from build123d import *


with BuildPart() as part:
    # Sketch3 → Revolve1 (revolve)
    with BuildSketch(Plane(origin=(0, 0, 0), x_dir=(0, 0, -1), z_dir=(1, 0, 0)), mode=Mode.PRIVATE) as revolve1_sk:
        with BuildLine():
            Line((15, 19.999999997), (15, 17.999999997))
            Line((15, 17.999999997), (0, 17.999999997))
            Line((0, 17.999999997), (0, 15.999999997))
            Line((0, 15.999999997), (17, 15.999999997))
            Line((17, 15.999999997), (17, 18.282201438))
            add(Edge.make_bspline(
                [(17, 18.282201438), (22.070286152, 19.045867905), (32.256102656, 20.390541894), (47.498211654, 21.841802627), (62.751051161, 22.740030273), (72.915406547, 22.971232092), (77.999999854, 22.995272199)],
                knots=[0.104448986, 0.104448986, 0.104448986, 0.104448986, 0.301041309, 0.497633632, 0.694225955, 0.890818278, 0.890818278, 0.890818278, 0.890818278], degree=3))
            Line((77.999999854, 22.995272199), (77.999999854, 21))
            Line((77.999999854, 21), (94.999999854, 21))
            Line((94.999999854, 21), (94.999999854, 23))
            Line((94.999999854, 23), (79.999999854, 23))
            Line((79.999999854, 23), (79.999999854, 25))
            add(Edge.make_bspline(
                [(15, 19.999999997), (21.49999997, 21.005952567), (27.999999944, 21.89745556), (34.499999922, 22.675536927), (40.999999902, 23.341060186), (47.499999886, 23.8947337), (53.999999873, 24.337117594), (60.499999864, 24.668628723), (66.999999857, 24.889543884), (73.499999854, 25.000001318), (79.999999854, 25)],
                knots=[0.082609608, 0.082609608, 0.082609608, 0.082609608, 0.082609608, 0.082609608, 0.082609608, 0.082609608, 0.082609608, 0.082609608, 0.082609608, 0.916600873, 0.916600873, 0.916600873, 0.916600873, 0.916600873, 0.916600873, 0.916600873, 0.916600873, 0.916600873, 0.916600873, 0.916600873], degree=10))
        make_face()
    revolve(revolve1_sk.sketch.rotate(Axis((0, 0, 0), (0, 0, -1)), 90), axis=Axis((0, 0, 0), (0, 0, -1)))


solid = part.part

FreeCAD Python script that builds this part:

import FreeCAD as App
import Part
import Sketcher
from FreeCAD import Vector
Q = App.Units.Quantity

doc = App.newDocument("Part")
body = doc.addObject("PartDesign::Body", "Body")

# Sketch on YZ plane
sketch1 = doc.addObject("Sketcher::SketchObject", "Sketch")
body.addObject(sketch1)
sketch1.AttachmentSupport = (doc.YZ_Plane, [""])
sketch1.MapMode = "FlatFace"
sketch1.addGeometry([
    Part.LineSegment(Vector(20, -15, 0), Vector(18, -15, 0)),  # 0
    Part.LineSegment(Vector(18, -15, 0), Vector(18, 0, 0)),  # 1
    Part.LineSegment(Vector(18, 0, 0), Vector(16, 0, 0)),  # 2
    Part.LineSegment(Vector(16, 0, 0), Vector(16, -17, 0)),  # 3
    Part.LineSegment(Vector(16, -17, 0), Vector(18.282201, -17, 0)),  # 4
    Part.BSplineCurve([Vector(18.282201, -17, 0), Vector(19.045868, -22.070286, 0), Vector(20.390542, -32.256103, 0), Vector(21.841803, -47.498212, 0), Vector(22.74003, -62.751051, 0), Vector(22.971232, -72.915407, 0), Vector(22.995272, -78, 0)], [4, 1, 1, 1, 4], [0.104448986, 0.301041309, 0.497633632, 0.694225955, 0.890818278], False, 3, [1, 1, 1, 1, 1, 1, 1], False),  # 5
    Part.LineSegment(Vector(22.995272, -78, 0), Vector(21, -78, 0)),  # 6
    Part.LineSegment(Vector(21, -78, 0), Vector(21, -95, 0)),  # 7
    Part.LineSegment(Vector(21, -95, 0), Vector(23, -95, 0)),  # 8
    Part.LineSegment(Vector(23, -95, 0), Vector(23, -80, 0)),  # 9
    Part.LineSegment(Vector(23, -80, 0), Vector(25, -80, 0)),  # 10
    Part.BSplineCurve([Vector(20, -15, 0), Vector(21.005953, -21.5, 0), Vector(21.897456, -28, 0), Vector(22.675537, -34.5, 0), Vector(23.34106, -41, 0), Vector(23.894734, -47.5, 0), Vector(24.337118, -54, 0), Vector(24.668629, -60.5, 0), Vector(24.889544, -67, 0), Vector(25.000001, -73.5, 0), Vector(25, -80, 0)], [11, 11], [0.082609608, 0.916600873], False, 10, [1, 1, 1, 1, 1, 1, 1, 1, 1, 1, 1], False),  # 11
], False)
sketch1.addConstraint([
    Sketcher.Constraint("Block", 5),
    Sketcher.Constraint("Block", 11),
    Sketcher.Constraint("Coincident", 0, 2, 1, 1),
    Sketcher.Constraint("Coincident", 1, 2, 2, 1),
    Sketcher.Constraint("Coincident", 2, 2, 3, 1),
    Sketcher.Constraint("Coincident", 3, 2, 4, 1),
    Sketcher.Constraint("Coincident", 4, 2, 5, 1),
    Sketcher.Constraint("Coincident", 5, 2, 6, 1),
    Sketcher.Constraint("Coincident", 6, 2, 7, 1),
    Sketcher.Constraint("Coincident", 7, 2, 8, 1),
    Sketcher.Constraint("Coincident", 8, 2, 9, 1),
    Sketcher.Constraint("Coincident", 9, 2, 10, 1),
    Sketcher.Constraint("Coincident", 10, 2, 11, 2),
    Sketcher.Constraint("Coincident", 11, 1, 0, 1),
    Sketcher.Constraint("Horizontal", 0),
    Sketcher.Constraint("Vertical", 1),
    Sketcher.Constraint("Horizontal", 2),
    Sketcher.Constraint("Vertical", 3),
    Sketcher.Constraint("Horizontal", 4),
    Sketcher.Constraint("Horizontal", 6),
    Sketcher.Constraint("Vertical", 7),
    Sketcher.Constraint("Horizontal", 8),
    Sketcher.Constraint("Vertical", 9),
    Sketcher.Constraint("Horizontal", 10),
    Sketcher.Constraint("PointOnObject", 1, 2, -1),
    Sketcher.Constraint("DistanceX", 0, 2, 0, 1, Q("2 mm")),
    Sketcher.Constraint("DistanceX", 2, 2, 2, 1, Q("2 mm")),
    Sketcher.Constraint("DistanceX", 8, 1, 8, 2, Q("2 mm")),
    Sketcher.Constraint("DistanceX", 10, 1, 10, 2, Q("2 mm")),
    Sketcher.Constraint("DistanceY", 7, 2, 7, 1, Q("17 mm")),
])
revolution = doc.addObject("PartDesign::Revolution", "Revolution")
body.addObject(revolution)
revolution.Profile = sketch1
revolution.ReferenceAxis = (sketch1, ["V_Axis"])
revolution.Angle = 360

doc.recompute()
